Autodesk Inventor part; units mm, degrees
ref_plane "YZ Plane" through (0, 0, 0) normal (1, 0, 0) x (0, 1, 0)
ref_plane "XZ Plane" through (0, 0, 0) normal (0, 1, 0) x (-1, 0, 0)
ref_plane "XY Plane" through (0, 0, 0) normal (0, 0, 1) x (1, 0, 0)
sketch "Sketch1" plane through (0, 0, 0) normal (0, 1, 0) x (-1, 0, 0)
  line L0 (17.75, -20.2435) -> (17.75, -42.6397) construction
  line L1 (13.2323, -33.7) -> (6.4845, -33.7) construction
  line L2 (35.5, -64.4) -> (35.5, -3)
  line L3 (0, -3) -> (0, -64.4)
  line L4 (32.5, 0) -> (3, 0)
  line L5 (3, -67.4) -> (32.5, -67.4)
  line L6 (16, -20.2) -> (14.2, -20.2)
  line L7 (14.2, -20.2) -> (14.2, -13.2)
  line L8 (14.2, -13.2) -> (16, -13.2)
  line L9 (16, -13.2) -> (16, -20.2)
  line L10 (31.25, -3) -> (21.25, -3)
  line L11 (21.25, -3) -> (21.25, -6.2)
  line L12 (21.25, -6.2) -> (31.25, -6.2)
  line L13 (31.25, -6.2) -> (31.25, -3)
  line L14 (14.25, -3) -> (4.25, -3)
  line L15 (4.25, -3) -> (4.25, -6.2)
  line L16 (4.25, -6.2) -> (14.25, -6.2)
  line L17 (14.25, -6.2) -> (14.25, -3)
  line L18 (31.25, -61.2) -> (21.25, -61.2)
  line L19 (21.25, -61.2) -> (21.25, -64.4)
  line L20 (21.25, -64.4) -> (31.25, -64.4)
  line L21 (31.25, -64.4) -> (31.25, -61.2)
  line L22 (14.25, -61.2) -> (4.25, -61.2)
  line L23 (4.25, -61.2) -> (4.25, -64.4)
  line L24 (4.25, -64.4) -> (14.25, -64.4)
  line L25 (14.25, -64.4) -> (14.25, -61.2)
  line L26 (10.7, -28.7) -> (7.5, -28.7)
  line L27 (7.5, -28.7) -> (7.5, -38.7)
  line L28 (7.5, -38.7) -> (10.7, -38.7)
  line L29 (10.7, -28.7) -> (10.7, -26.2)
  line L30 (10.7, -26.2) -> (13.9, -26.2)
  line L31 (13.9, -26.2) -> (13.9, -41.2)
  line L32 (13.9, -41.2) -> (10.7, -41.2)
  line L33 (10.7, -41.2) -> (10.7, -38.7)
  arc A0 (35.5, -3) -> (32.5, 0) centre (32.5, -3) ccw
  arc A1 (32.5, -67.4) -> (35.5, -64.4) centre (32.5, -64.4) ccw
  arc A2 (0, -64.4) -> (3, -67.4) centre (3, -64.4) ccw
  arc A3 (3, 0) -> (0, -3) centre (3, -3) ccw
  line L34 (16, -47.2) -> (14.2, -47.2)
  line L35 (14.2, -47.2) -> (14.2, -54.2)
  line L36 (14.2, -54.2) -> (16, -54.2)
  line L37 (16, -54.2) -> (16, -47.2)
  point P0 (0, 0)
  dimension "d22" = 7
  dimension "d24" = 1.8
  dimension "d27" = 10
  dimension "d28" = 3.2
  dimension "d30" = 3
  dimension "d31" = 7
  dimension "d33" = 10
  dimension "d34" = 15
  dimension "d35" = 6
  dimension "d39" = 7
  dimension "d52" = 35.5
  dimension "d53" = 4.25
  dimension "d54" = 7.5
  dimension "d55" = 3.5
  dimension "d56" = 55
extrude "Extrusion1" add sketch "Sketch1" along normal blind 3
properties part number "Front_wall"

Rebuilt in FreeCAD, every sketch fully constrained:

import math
import FreeCAD as App
import Part
import Sketcher
from FreeCAD import Vector
Q = App.Units.Quantity


def add_polygon(sketch, points):
    """Adds a closed chain of lines whose ends are joined by coincident constraints."""
    first, n = sketch.GeometryCount, len(points)
    for a, b in zip(points, points[1:] + points[:1]):
        sketch.addGeometry(Part.LineSegment(App.Vector(*a, 0), App.Vector(*b, 0)), False)
    for i in range(n):
        sketch.addConstraint(Sketcher.Constraint("Coincident", first + i, 2, first + (i + 1) % n, 1))

doc = App.newDocument("Part")
body = doc.addObject("PartDesign::Body", "Body")

sketch1 = body.newObject("Sketcher::SketchObject", "Sketch")
sketch1.AttachmentSupport = (doc.getObject("XZ_Plane"), [""])
sketch1.MapMode = "FlatFace"
sketch1.addGeometry(Part.ArcOfCircle(Part.Circle(Vector(-32.5, -64.4, 0), Vector(0, 0, 1), 3), math.radians(180), math.radians(270)), False)
sketch1.addGeometry(Part.LineSegment(Vector(-35.5, -64.4, 0), Vector(-35.5, -3, 0)), False)
sketch1.addGeometry(Part.ArcOfCircle(Part.Circle(Vector(-32.5, -3, 0), Vector(0, 0, 1), 3), math.radians(90), math.radians(180)), False)
sketch1.addGeometry(Part.LineSegment(Vector(-32.5, 0, 0), Vector(-3, 0, 0)), False)
sketch1.addGeometry(Part.ArcOfCircle(Part.Circle(Vector(-3, -3, 0), Vector(0, 0, 1), 3), math.radians(0), math.radians(90)), False)
sketch1.addGeometry(Part.LineSegment(Vector(0, -3, 0), Vector(0, -64.4, 0)), False)
sketch1.addGeometry(Part.ArcOfCircle(Part.Circle(Vector(-3, -64.4, 0), Vector(0, 0, 1), 3), math.radians(-90), math.radians(0)), False)
sketch1.addGeometry(Part.LineSegment(Vector(-3, -67.4, 0), Vector(-32.5, -67.4, 0)), False)
add_polygon(sketch1, [(-4.2, -61.2), (-14.2, -61.2), (-14.2, -64.4), (-4.2, -64.4)])
add_polygon(sketch1, [(-14.2, -47.2), (-16, -47.2), (-16, -54.2), (-14.2, -54.2)])
add_polygon(sketch1, [(-21.2, -61.2), (-31.2, -61.2), (-31.2, -64.4), (-21.2, -64.4)])
add_polygon(sketch1, [(-7.5, -28.7), (-10.7, -28.7), (-10.7, -26.2), (-13.9, -26.2), (-13.9, -41.2), (-10.7, -41.2), (-10.7, -38.7), (-7.5, -38.7)])
add_polygon(sketch1, [(-16, -13.2), (-16, -20.2), (-14.2, -20.2), (-14.2, -13.2)])
add_polygon(sketch1, [(-4.2, -3), (-14.2, -3), (-14.2, -6.2), (-4.2, -6.2)])
add_polygon(sketch1, [(-21.2, -3), (-31.2, -3), (-31.2, -6.2), (-21.2, -6.2)])
sketch1.addConstraint(Sketcher.Constraint("Tangent", 0, 1, 1, 1))
sketch1.addConstraint(Sketcher.Constraint("Tangent", 1, 2, 2, 2))
sketch1.addConstraint(Sketcher.Constraint("Tangent", 2, 1, 3, 1))
sketch1.addConstraint(Sketcher.Constraint("Tangent", 3, 2, 4, 2))
sketch1.addConstraint(Sketcher.Constraint("Tangent", 4, 1, 5, 1))
sketch1.addConstraint(Sketcher.Constraint("Tangent", 5, 2, 6, 2))
sketch1.addConstraint(Sketcher.Constraint("Tangent", 6, 1, 7, 1))
sketch1.addConstraint(Sketcher.Constraint("Tangent", 7, 2, 0, 2))
sketch1.addConstraint(Sketcher.Constraint("Vertical", 1))
sketch1.addConstraint(Sketcher.Constraint("Horizontal", 3))
sketch1.addConstraint(Sketcher.Constraint("Vertical", 5))
sketch1.addConstraint(Sketcher.Constraint("Horizontal", 7))
sketch1.addConstraint(Sketcher.Constraint("Horizontal", 8))
sketch1.addConstraint(Sketcher.Constraint("Vertical", 9))
sketch1.addConstraint(Sketcher.Constraint("Horizontal", 10))
sketch1.addConstraint(Sketcher.Constraint("Vertical", 11))
sketch1.addConstraint(Sketcher.Constraint("Horizontal", 12))
sketch1.addConstraint(Sketcher.Constraint("Vertical", 13))
sketch1.addConstraint(Sketcher.Constraint("Horizontal", 14))
sketch1.addConstraint(Sketcher.Constraint("Vertical", 15))
sketch1.addConstraint(Sketcher.Constraint("Horizontal", 16))
sketch1.addConstraint(Sketcher.Constraint("Vertical", 17))
sketch1.addConstraint(Sketcher.Constraint("Horizontal", 18))
sketch1.addConstraint(Sketcher.Constraint("Vertical", 19))
sketch1.addConstraint(Sketcher.Constraint("Horizontal", 20))
sketch1.addConstraint(Sketcher.Constraint("Vertical", 21))
sketch1.addConstraint(Sketcher.Constraint("Horizontal", 22))
sketch1.addConstraint(Sketcher.Constraint("Vertical", 23))
sketch1.addConstraint(Sketcher.Constraint("Horizontal", 24))
sketch1.addConstraint(Sketcher.Constraint("Vertical", 25))
sketch1.addConstraint(Sketcher.Constraint("Horizontal", 26))
sketch1.addConstraint(Sketcher.Constraint("Vertical", 27))
sketch1.addConstraint(Sketcher.Constraint("Vertical", 28))
sketch1.addConstraint(Sketcher.Constraint("Horizontal", 29))
sketch1.addConstraint(Sketcher.Constraint("Vertical", 30))
sketch1.addConstraint(Sketcher.Constraint("Horizontal", 31))
sketch1.addConstraint(Sketcher.Constraint("Horizontal", 32))
sketch1.addConstraint(Sketcher.Constraint("Vertical", 33))
sketch1.addConstraint(Sketcher.Constraint("Horizontal", 34))
sketch1.addConstraint(Sketcher.Constraint("Vertical", 35))
sketch1.addConstraint(Sketcher.Constraint("Horizontal", 36))
sketch1.addConstraint(Sketcher.Constraint("Vertical", 37))
sketch1.addConstraint(Sketcher.Constraint("Horizontal", 38))
sketch1.addConstraint(Sketcher.Constraint("Vertical", 39))
sketch1.addConstraint(Sketcher.Constraint("Equal", 0, 2))
sketch1.addConstraint(Sketcher.Constraint("Equal", 2, 4))
sketch1.addConstraint(Sketcher.Constraint("Equal", 4, 6))
sketch1.addConstraint(Sketcher.Constraint("PointOnObject", 2, 1, -1))
sketch1.addConstraint(Sketcher.Constraint("PointOnObject", 4, 1, -2))
sketch1.addConstraint(Sketcher.Constraint("Horizontal", 5, 2, 9, 2))
sketch1.addConstraint(Sketcher.Constraint("Horizontal", 11, 2, 16, 2))
sketch1.addConstraint(Sketcher.Constraint("Horizontal", 10, 2, 17, 2))
sketch1.addConstraint(Sketcher.Constraint("Horizontal", 4, 1, 32, 2))
sketch1.addConstraint(Sketcher.Constraint("Horizontal", 35, 2, 36, 2))
sketch1.addConstraint(Sketcher.Constraint("Horizontal", 34, 2, 37, 2))
sketch1.addConstraint(Sketcher.Constraint("Vertical", 21, 2, 24, 2))
sketch1.addConstraint(Sketcher.Constraint("Vertical", 13, 2, 28, 2))
sketch1.addConstraint(Sketcher.Constraint("Vertical", 15, 2, 29, 2))
sketch1.addConstraint(Sketcher.Constraint("Vertical", 9, 2, 32, 2))
sketch1.addConstraint(Sketcher.Constraint("Vertical", 11, 2, 34, 2))
sketch1.addConstraint(Sketcher.Constraint("Vertical", 17, 2, 36, 2))
sketch1.addConstraint(Sketcher.Constraint("Vertical", 19, 2, 38, 2))
sketch1.addConstraint(Sketcher.Constraint("Equal", 10, 16))
sketch1.addConstraint(Sketcher.Constraint("Equal", 20, 22))
sketch1.addConstraint(Sketcher.Constraint("Equal", 26, 9))
sketch1.addConstraint(Sketcher.Constraint("Equal", 21, 25))
sketch1.addConstraint(Sketcher.Constraint("Equal", 38, 27))
sketch1.addConstraint(Sketcher.Constraint("Equal", 15, 28))
sketch1.addConstraint(Sketcher.Constraint("Equal", 19, 33))
sketch1.addConstraint(Sketcher.Constraint("Radius", 0, Q("3 mm")))
sketch1.addConstraint(Sketcher.Constraint("DistanceX", 8, 2, 8, 1, Q("10 mm")))
sketch1.addConstraint(Sketcher.Constraint("DistanceY", 13, 2, 13, 1, Q("7 mm")))
sketch1.addConstraint(Sketcher.Constraint("DistanceY", 23, 2, 23, 1, Q("15 mm")))
sketch1.addConstraint(Sketcher.Constraint("DistanceX", 12, 2, 12, 1, Q("1.8 mm")))
sketch1.addConstraint(Sketcher.Constraint("DistanceX", 20, 2, 20, 1, Q("3.2 mm")))
sketch1.addConstraint(Sketcher.Constraint("DistanceY", 8, 2, 13, 2, Q("7 mm")))
sketch1.addConstraint(Sketcher.Constraint("DistanceX", 18, 2, 9, 2, Q("7 mm")))
sketch1.addConstraint(Sketcher.Constraint("DistanceY", 15, 2, 23, 2, Q("6 mm")))
sketch1.addConstraint(Sketcher.Constraint("DistanceY", 22, 2, 28, 2, Q("6 mm")))
sketch1.addConstraint(Sketcher.Constraint("DistanceY", 30, 2, 33, 2, Q("7 mm")))
sketch1.addConstraint(Sketcher.Constraint("DistanceX", 0, 1, -1, 1, Q("35.5 mm")))
sketch1.addConstraint(Sketcher.Constraint("DistanceX", 26, 2, -1, 1, Q("7.5 mm")))
sketch1.addConstraint(Sketcher.Constraint("DistanceX", 15, 2, 20, 2, Q("3.5 mm")))
sketch1.addConstraint(Sketcher.Constraint("DistanceX", 10, 2, -1, 1, Q("4.25 mm")))
pad1 = body.newObject("PartDesign::Pad", "Pad")
pad1.Profile = sketch1
pad1.Length = 3
pad1.Reversed = True

doc.recompute()
